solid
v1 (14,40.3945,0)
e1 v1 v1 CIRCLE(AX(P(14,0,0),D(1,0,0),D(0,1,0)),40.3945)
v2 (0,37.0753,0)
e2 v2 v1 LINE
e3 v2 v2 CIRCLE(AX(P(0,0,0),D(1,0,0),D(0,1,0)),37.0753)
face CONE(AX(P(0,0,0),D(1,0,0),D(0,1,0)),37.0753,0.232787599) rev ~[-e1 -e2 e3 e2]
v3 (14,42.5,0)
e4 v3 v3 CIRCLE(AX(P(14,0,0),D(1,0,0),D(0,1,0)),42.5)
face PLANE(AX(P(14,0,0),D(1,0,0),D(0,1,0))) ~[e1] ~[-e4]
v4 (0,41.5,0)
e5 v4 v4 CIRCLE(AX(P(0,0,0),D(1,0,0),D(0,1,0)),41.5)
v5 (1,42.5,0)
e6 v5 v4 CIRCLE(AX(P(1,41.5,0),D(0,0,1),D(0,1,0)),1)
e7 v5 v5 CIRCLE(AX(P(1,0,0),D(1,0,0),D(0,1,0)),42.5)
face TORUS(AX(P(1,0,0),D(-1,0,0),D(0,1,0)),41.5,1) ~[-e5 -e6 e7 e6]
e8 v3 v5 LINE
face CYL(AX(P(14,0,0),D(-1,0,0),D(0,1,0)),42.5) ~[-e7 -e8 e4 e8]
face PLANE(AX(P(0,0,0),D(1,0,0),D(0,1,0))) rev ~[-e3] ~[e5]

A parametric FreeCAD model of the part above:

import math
import FreeCAD as App
import Part
import Sketcher
from FreeCAD import Vector

doc = App.newDocument("Part")
body = doc.addObject("PartDesign::Body", "Body")

sketch1 = body.newObject("Sketcher::SketchObject", "Sketch")
sketch1.AttachmentSupport = (doc.getObject("XY_Plane"), [""])
sketch1.MapMode = "FlatFace"
sketch1.addGeometry([
    Part.ArcOfCircle(Part.Circle(Vector(1, 41.5, 0), Vector(0, 0, 1), 1), math.radians(90), math.radians(180)),
    Part.LineSegment(Vector(0, 41.5, 0), Vector(0, 37.0753, 0)),
    Part.LineSegment(Vector(0, 37.0753, 0), Vector(14, 40.3945, 0)),
    Part.LineSegment(Vector(14, 40.3945, 0), Vector(14, 42.5, 0)),
    Part.LineSegment(Vector(14, 42.5, 0), Vector(1, 42.5, 0)),
], False)
sketch1.addConstraint([
    Sketcher.Constraint("Tangent", 0, 2, 1, 1),
    Sketcher.Constraint("Coincident", 1, 2, 2, 1),
    Sketcher.Constraint("Coincident", 2, 2, 3, 1),
    Sketcher.Constraint("Coincident", 3, 2, 4, 1),
    Sketcher.Constraint("Tangent", 4, 2, 0, 1),
    Sketcher.Constraint("Vertical", 1),
    Sketcher.Constraint("Vertical", 3),
    Sketcher.Constraint("Horizontal", 4),
    Sketcher.Constraint("PointOnObject", 0, 2, -2),
    Sketcher.Constraint("Radius", 0, 1.0),
    Sketcher.Constraint("DistanceX", 4, 2, 4, 1, 13.0),
    Sketcher.Constraint("DistanceY", -1, 1, 0, 3, 41.5),
    Sketcher.Constraint("Distance", 2, 14.388),
    Sketcher.Constraint("DistanceY", 1, 2, 1, 1, 4.4247),
])
revolution = body.newObject("PartDesign::Revolution", "Revolution")
revolution.Profile = sketch1
revolution.ReferenceAxis = (sketch1, ["H_Axis"])
revolution.Angle = 360

doc.recompute()
